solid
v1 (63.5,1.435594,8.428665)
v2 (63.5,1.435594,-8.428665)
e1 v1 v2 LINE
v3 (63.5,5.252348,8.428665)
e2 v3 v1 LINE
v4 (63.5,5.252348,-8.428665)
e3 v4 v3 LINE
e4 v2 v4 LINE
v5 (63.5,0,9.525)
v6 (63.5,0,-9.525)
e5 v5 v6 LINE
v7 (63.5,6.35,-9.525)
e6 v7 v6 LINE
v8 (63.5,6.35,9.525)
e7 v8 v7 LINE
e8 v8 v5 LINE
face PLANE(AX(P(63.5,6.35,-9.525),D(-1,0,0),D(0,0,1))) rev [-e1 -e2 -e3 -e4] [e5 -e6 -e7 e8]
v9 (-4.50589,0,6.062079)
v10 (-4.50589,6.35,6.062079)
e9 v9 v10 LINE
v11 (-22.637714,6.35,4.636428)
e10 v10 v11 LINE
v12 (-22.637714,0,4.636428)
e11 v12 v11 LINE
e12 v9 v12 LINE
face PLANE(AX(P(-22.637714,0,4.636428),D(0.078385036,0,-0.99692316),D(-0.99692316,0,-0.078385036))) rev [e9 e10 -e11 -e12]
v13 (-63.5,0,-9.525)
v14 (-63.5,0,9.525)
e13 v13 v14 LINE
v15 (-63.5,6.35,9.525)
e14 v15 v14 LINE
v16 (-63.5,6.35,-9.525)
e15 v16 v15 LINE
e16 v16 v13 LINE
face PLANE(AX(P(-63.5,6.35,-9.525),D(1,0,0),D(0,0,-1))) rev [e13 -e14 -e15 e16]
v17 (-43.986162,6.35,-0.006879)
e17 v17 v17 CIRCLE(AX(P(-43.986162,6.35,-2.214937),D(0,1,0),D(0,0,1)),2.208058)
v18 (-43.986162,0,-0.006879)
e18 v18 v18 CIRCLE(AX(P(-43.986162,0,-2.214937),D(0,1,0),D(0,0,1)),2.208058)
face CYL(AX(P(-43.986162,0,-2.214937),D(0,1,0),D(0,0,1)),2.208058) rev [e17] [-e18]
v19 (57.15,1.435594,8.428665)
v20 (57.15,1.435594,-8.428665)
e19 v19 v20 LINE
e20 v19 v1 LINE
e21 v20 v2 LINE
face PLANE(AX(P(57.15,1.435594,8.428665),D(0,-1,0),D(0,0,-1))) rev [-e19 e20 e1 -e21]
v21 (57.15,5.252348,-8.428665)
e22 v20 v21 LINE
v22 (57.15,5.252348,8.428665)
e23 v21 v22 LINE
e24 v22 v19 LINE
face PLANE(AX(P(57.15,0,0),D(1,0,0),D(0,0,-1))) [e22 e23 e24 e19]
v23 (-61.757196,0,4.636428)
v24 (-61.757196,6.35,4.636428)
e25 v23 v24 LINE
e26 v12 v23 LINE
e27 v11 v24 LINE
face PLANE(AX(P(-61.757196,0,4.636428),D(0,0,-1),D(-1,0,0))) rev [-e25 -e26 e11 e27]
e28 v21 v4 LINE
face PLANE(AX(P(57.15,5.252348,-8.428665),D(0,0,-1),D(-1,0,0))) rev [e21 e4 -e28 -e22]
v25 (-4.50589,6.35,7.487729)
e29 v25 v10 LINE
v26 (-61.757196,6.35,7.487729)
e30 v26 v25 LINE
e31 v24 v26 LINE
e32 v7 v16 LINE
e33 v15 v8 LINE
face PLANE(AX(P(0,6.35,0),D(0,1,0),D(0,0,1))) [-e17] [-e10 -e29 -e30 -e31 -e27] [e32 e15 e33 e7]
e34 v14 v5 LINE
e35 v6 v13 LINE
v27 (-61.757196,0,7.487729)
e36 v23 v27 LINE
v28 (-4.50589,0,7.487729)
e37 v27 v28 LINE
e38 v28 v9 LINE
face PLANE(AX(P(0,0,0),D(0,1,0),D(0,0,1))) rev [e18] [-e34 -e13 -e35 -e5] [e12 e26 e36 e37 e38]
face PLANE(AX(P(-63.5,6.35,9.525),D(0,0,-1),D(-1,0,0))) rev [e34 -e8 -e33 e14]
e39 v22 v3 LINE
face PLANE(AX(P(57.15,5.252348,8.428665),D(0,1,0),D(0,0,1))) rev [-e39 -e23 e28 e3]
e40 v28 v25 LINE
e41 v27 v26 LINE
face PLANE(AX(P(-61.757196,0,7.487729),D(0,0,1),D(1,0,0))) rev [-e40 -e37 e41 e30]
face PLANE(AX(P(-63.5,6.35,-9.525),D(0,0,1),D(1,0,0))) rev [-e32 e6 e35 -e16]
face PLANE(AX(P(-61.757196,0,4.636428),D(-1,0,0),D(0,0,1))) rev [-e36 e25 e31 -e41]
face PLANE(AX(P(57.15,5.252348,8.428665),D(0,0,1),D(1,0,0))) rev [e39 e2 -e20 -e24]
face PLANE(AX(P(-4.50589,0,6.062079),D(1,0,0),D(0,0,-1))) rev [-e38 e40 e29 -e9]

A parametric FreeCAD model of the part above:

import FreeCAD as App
import Part
import Sketcher
Q = App.Units.Quantity

doc = App.newDocument("Part")
body = doc.addObject("PartDesign::Body", "Body")

# Sketch on XZ plane
sketch1 = body.newObject("Sketcher::SketchObject", "Sketch")
sketch1.AttachmentSupport = (doc.getObject("XZ_Plane"), [""])
sketch1.MapMode = "FlatFace"
sketch1.addGeometry([
    Part.LineSegment(App.Vector(-64, -10, 0), App.Vector(-64, 10, 0)),
    Part.LineSegment(App.Vector(-64, 10, 0), App.Vector(64, 10, 0)),
    Part.LineSegment(App.Vector(64, 10, 0), App.Vector(64, -10, 0)),
    Part.LineSegment(App.Vector(64, -10, 0), App.Vector(-64, -10, 0)),
], False)
sketch1.addConstraint([
    Sketcher.Constraint("Coincident", 0, 2, 1, 1),
    Sketcher.Constraint("Coincident", 1, 2, 2, 1),
    Sketcher.Constraint("Coincident", 2, 2, 3, 1),
    Sketcher.Constraint("Coincident", 3, 2, 0, 1),
    Sketcher.Constraint("Vertical", 0),
    Sketcher.Constraint("Horizontal", 1),
    Sketcher.Constraint("Vertical", 2),
    Sketcher.Constraint("Horizontal", 3),
    Sketcher.Constraint("Symmetric", 0, 2, 2, 2, -1, 1),
    Sketcher.Constraint("DistanceX", 1, 1, 1, 2, Q("5 in")),
    Sketcher.Constraint("DistanceY", 0, 1, 0, 2, Q("0.75 in")),
])
pad1 = body.newObject("PartDesign::Pad", "Pad")
pad1.Profile = sketch1
pad1.Length = Q("0.25 in")
pad1.Reversed = True

# Sketch on YZ plane
sketch2 = body.newObject("Sketcher::SketchObject", "Sketch001")
sketch2.AttachmentSupport = (doc.getObject("YZ_Plane"), [""])
sketch2.MapMode = "FlatFace"
sketch2.AttachmentOffset = App.Placement(App.Vector(0, 0, 2.5 * 25.4), App.Rotation())
sketch2.addGeometry([
    Part.LineSegment(App.Vector(5.3, 8.4, 0), App.Vector(1.4, 8.4, 0)),
    Part.LineSegment(App.Vector(1.4, 8.4, 0), App.Vector(1.4, -8.4, 0)),
    Part.LineSegment(App.Vector(1.4, -8.4, 0), App.Vector(5.3, -8.4, 0)),
    Part.LineSegment(App.Vector(5.3, -8.4, 0), App.Vector(5.3, 8.4, 0)),
], False)
sketch2.addConstraint([
    Sketcher.Constraint("Coincident", 0, 2, 1, 1),
    Sketcher.Constraint("Coincident", 1, 2, 2, 1),
    Sketcher.Constraint("Coincident", 2, 2, 3, 1),
    Sketcher.Constraint("Coincident", 3, 2, 0, 1),
    Sketcher.Constraint("Horizontal", 0),
    Sketcher.Constraint("Vertical", 1),
    Sketcher.Constraint("Horizontal", 2),
    Sketcher.Constraint("Vertical", 3),
    Sketcher.Constraint("DistanceY", 1, 2, 1, 1, Q("16.857329 mm")),
    Sketcher.Constraint("DistanceX", 0, 2, 0, 1, Q("3.816754 mm")),
    Sketcher.Constraint("DistanceX", -1, 1, 0, 2, Q("1.435594 mm")),
    Sketcher.Constraint("DistanceY", -1, 1, 0, 2, Q("8.428665 mm")),
])
pocket1 = body.newObject("PartDesign::Pocket", "Pocket")
pocket1.Profile = sketch2
pocket1.Length = Q("0.25 in")

# Sketch on XZ plane
sketch3 = body.newObject("Sketcher::SketchObject", "Sketch002")
sketch3.AttachmentSupport = (doc.getObject("XZ_Plane"), [""])
sketch3.MapMode = "FlatFace"
sketch3.AttachmentOffset = App.Placement(App.Vector(0, 0, -0.25 * 25.4), App.Rotation())
sketch3.addGeometry([
    Part.LineSegment(App.Vector(-4.5, 6.1, 0), App.Vector(-22.6, 4.6, 0)),  # 0
    Part.LineSegment(App.Vector(-22.6, 4.6, 0), App.Vector(-61.8, 4.6, 0)),  # 1
    Part.LineSegment(App.Vector(-61.8, 4.6, 0), App.Vector(-61.8, 7.5, 0)),  # 2
    Part.LineSegment(App.Vector(-61.8, 7.5, 0), App.Vector(-4.5, 7.5, 0)),  # 3
    Part.LineSegment(App.Vector(-4.5, 7.5, 0), App.Vector(-4.5, 6.1, 0)),  # 4
], False)
sketch3.addConstraint([
    Sketcher.Constraint("Coincident", 0, 2, 1, 1),
    Sketcher.Constraint("Coincident", 1, 2, 2, 1),
    Sketcher.Constraint("Coincident", 2, 2, 3, 1),
    Sketcher.Constraint("Coincident", 3, 2, 4, 1),
    Sketcher.Constraint("Coincident", 4, 2, 0, 1),
    Sketcher.Constraint("Horizontal", 1),
    Sketcher.Constraint("Vertical", 2),
    Sketcher.Constraint("Horizontal", 3),
    Sketcher.Constraint("Vertical", 4),
    Sketcher.Constraint("DistanceY", 2, 1, 2, 2, Q("2.8513 mm")),
    Sketcher.Constraint("DistanceY", 4, 2, 4, 1, Q("1.42565 mm")),
    Sketcher.Constraint("DistanceX", 1, 2, 1, 1, Q("39.119482 mm")),
    Sketcher.Constraint("DistanceX", 3, 1, 3, 2, Q("57.251306 mm")),
    Sketcher.Constraint("DistanceY", -1, 1, 0, 2, Q("4.636428 mm")),
    Sketcher.Constraint("DistanceX", 3, 2, -1, 1, Q("4.50589 mm")),
])
pocket2 = body.newObject("PartDesign::Pocket", "Pocket001")
pocket2.Profile = sketch3
pocket2.Type = "ThroughAll"
pocket2.Reversed = True

# Sketch on XZ plane
sketch4 = body.newObject("Sketcher::SketchObject", "Sketch003")
sketch4.AttachmentSupport = (doc.getObject("XZ_Plane"), [""])
sketch4.MapMode = "FlatFace"
sketch4.AttachmentOffset = App.Placement(App.Vector(0, 0, -0.25 * 25.4), App.Rotation())
sketch4.addGeometry(Part.Circle(App.Vector(-44, -2.2, 0), App.Vector(0, 0, 1), 2.2), False)
sketch4.addConstraint([
    Sketcher.Constraint("Diameter", 0, Q("4.416117 mm")),
    Sketcher.Constraint("DistanceX", 0, 3, -1, 1, Q("43.986162 mm")),
    Sketcher.Constraint("DistanceY", 0, 3, -1, 1, Q("2.214937 mm")),
])
pocket3 = body.newObject("PartDesign::Pocket", "Pocket002")
pocket3.Profile = sketch4
pocket3.Length = Q("0.25 in")
pocket3.Reversed = True

doc.recompute()
